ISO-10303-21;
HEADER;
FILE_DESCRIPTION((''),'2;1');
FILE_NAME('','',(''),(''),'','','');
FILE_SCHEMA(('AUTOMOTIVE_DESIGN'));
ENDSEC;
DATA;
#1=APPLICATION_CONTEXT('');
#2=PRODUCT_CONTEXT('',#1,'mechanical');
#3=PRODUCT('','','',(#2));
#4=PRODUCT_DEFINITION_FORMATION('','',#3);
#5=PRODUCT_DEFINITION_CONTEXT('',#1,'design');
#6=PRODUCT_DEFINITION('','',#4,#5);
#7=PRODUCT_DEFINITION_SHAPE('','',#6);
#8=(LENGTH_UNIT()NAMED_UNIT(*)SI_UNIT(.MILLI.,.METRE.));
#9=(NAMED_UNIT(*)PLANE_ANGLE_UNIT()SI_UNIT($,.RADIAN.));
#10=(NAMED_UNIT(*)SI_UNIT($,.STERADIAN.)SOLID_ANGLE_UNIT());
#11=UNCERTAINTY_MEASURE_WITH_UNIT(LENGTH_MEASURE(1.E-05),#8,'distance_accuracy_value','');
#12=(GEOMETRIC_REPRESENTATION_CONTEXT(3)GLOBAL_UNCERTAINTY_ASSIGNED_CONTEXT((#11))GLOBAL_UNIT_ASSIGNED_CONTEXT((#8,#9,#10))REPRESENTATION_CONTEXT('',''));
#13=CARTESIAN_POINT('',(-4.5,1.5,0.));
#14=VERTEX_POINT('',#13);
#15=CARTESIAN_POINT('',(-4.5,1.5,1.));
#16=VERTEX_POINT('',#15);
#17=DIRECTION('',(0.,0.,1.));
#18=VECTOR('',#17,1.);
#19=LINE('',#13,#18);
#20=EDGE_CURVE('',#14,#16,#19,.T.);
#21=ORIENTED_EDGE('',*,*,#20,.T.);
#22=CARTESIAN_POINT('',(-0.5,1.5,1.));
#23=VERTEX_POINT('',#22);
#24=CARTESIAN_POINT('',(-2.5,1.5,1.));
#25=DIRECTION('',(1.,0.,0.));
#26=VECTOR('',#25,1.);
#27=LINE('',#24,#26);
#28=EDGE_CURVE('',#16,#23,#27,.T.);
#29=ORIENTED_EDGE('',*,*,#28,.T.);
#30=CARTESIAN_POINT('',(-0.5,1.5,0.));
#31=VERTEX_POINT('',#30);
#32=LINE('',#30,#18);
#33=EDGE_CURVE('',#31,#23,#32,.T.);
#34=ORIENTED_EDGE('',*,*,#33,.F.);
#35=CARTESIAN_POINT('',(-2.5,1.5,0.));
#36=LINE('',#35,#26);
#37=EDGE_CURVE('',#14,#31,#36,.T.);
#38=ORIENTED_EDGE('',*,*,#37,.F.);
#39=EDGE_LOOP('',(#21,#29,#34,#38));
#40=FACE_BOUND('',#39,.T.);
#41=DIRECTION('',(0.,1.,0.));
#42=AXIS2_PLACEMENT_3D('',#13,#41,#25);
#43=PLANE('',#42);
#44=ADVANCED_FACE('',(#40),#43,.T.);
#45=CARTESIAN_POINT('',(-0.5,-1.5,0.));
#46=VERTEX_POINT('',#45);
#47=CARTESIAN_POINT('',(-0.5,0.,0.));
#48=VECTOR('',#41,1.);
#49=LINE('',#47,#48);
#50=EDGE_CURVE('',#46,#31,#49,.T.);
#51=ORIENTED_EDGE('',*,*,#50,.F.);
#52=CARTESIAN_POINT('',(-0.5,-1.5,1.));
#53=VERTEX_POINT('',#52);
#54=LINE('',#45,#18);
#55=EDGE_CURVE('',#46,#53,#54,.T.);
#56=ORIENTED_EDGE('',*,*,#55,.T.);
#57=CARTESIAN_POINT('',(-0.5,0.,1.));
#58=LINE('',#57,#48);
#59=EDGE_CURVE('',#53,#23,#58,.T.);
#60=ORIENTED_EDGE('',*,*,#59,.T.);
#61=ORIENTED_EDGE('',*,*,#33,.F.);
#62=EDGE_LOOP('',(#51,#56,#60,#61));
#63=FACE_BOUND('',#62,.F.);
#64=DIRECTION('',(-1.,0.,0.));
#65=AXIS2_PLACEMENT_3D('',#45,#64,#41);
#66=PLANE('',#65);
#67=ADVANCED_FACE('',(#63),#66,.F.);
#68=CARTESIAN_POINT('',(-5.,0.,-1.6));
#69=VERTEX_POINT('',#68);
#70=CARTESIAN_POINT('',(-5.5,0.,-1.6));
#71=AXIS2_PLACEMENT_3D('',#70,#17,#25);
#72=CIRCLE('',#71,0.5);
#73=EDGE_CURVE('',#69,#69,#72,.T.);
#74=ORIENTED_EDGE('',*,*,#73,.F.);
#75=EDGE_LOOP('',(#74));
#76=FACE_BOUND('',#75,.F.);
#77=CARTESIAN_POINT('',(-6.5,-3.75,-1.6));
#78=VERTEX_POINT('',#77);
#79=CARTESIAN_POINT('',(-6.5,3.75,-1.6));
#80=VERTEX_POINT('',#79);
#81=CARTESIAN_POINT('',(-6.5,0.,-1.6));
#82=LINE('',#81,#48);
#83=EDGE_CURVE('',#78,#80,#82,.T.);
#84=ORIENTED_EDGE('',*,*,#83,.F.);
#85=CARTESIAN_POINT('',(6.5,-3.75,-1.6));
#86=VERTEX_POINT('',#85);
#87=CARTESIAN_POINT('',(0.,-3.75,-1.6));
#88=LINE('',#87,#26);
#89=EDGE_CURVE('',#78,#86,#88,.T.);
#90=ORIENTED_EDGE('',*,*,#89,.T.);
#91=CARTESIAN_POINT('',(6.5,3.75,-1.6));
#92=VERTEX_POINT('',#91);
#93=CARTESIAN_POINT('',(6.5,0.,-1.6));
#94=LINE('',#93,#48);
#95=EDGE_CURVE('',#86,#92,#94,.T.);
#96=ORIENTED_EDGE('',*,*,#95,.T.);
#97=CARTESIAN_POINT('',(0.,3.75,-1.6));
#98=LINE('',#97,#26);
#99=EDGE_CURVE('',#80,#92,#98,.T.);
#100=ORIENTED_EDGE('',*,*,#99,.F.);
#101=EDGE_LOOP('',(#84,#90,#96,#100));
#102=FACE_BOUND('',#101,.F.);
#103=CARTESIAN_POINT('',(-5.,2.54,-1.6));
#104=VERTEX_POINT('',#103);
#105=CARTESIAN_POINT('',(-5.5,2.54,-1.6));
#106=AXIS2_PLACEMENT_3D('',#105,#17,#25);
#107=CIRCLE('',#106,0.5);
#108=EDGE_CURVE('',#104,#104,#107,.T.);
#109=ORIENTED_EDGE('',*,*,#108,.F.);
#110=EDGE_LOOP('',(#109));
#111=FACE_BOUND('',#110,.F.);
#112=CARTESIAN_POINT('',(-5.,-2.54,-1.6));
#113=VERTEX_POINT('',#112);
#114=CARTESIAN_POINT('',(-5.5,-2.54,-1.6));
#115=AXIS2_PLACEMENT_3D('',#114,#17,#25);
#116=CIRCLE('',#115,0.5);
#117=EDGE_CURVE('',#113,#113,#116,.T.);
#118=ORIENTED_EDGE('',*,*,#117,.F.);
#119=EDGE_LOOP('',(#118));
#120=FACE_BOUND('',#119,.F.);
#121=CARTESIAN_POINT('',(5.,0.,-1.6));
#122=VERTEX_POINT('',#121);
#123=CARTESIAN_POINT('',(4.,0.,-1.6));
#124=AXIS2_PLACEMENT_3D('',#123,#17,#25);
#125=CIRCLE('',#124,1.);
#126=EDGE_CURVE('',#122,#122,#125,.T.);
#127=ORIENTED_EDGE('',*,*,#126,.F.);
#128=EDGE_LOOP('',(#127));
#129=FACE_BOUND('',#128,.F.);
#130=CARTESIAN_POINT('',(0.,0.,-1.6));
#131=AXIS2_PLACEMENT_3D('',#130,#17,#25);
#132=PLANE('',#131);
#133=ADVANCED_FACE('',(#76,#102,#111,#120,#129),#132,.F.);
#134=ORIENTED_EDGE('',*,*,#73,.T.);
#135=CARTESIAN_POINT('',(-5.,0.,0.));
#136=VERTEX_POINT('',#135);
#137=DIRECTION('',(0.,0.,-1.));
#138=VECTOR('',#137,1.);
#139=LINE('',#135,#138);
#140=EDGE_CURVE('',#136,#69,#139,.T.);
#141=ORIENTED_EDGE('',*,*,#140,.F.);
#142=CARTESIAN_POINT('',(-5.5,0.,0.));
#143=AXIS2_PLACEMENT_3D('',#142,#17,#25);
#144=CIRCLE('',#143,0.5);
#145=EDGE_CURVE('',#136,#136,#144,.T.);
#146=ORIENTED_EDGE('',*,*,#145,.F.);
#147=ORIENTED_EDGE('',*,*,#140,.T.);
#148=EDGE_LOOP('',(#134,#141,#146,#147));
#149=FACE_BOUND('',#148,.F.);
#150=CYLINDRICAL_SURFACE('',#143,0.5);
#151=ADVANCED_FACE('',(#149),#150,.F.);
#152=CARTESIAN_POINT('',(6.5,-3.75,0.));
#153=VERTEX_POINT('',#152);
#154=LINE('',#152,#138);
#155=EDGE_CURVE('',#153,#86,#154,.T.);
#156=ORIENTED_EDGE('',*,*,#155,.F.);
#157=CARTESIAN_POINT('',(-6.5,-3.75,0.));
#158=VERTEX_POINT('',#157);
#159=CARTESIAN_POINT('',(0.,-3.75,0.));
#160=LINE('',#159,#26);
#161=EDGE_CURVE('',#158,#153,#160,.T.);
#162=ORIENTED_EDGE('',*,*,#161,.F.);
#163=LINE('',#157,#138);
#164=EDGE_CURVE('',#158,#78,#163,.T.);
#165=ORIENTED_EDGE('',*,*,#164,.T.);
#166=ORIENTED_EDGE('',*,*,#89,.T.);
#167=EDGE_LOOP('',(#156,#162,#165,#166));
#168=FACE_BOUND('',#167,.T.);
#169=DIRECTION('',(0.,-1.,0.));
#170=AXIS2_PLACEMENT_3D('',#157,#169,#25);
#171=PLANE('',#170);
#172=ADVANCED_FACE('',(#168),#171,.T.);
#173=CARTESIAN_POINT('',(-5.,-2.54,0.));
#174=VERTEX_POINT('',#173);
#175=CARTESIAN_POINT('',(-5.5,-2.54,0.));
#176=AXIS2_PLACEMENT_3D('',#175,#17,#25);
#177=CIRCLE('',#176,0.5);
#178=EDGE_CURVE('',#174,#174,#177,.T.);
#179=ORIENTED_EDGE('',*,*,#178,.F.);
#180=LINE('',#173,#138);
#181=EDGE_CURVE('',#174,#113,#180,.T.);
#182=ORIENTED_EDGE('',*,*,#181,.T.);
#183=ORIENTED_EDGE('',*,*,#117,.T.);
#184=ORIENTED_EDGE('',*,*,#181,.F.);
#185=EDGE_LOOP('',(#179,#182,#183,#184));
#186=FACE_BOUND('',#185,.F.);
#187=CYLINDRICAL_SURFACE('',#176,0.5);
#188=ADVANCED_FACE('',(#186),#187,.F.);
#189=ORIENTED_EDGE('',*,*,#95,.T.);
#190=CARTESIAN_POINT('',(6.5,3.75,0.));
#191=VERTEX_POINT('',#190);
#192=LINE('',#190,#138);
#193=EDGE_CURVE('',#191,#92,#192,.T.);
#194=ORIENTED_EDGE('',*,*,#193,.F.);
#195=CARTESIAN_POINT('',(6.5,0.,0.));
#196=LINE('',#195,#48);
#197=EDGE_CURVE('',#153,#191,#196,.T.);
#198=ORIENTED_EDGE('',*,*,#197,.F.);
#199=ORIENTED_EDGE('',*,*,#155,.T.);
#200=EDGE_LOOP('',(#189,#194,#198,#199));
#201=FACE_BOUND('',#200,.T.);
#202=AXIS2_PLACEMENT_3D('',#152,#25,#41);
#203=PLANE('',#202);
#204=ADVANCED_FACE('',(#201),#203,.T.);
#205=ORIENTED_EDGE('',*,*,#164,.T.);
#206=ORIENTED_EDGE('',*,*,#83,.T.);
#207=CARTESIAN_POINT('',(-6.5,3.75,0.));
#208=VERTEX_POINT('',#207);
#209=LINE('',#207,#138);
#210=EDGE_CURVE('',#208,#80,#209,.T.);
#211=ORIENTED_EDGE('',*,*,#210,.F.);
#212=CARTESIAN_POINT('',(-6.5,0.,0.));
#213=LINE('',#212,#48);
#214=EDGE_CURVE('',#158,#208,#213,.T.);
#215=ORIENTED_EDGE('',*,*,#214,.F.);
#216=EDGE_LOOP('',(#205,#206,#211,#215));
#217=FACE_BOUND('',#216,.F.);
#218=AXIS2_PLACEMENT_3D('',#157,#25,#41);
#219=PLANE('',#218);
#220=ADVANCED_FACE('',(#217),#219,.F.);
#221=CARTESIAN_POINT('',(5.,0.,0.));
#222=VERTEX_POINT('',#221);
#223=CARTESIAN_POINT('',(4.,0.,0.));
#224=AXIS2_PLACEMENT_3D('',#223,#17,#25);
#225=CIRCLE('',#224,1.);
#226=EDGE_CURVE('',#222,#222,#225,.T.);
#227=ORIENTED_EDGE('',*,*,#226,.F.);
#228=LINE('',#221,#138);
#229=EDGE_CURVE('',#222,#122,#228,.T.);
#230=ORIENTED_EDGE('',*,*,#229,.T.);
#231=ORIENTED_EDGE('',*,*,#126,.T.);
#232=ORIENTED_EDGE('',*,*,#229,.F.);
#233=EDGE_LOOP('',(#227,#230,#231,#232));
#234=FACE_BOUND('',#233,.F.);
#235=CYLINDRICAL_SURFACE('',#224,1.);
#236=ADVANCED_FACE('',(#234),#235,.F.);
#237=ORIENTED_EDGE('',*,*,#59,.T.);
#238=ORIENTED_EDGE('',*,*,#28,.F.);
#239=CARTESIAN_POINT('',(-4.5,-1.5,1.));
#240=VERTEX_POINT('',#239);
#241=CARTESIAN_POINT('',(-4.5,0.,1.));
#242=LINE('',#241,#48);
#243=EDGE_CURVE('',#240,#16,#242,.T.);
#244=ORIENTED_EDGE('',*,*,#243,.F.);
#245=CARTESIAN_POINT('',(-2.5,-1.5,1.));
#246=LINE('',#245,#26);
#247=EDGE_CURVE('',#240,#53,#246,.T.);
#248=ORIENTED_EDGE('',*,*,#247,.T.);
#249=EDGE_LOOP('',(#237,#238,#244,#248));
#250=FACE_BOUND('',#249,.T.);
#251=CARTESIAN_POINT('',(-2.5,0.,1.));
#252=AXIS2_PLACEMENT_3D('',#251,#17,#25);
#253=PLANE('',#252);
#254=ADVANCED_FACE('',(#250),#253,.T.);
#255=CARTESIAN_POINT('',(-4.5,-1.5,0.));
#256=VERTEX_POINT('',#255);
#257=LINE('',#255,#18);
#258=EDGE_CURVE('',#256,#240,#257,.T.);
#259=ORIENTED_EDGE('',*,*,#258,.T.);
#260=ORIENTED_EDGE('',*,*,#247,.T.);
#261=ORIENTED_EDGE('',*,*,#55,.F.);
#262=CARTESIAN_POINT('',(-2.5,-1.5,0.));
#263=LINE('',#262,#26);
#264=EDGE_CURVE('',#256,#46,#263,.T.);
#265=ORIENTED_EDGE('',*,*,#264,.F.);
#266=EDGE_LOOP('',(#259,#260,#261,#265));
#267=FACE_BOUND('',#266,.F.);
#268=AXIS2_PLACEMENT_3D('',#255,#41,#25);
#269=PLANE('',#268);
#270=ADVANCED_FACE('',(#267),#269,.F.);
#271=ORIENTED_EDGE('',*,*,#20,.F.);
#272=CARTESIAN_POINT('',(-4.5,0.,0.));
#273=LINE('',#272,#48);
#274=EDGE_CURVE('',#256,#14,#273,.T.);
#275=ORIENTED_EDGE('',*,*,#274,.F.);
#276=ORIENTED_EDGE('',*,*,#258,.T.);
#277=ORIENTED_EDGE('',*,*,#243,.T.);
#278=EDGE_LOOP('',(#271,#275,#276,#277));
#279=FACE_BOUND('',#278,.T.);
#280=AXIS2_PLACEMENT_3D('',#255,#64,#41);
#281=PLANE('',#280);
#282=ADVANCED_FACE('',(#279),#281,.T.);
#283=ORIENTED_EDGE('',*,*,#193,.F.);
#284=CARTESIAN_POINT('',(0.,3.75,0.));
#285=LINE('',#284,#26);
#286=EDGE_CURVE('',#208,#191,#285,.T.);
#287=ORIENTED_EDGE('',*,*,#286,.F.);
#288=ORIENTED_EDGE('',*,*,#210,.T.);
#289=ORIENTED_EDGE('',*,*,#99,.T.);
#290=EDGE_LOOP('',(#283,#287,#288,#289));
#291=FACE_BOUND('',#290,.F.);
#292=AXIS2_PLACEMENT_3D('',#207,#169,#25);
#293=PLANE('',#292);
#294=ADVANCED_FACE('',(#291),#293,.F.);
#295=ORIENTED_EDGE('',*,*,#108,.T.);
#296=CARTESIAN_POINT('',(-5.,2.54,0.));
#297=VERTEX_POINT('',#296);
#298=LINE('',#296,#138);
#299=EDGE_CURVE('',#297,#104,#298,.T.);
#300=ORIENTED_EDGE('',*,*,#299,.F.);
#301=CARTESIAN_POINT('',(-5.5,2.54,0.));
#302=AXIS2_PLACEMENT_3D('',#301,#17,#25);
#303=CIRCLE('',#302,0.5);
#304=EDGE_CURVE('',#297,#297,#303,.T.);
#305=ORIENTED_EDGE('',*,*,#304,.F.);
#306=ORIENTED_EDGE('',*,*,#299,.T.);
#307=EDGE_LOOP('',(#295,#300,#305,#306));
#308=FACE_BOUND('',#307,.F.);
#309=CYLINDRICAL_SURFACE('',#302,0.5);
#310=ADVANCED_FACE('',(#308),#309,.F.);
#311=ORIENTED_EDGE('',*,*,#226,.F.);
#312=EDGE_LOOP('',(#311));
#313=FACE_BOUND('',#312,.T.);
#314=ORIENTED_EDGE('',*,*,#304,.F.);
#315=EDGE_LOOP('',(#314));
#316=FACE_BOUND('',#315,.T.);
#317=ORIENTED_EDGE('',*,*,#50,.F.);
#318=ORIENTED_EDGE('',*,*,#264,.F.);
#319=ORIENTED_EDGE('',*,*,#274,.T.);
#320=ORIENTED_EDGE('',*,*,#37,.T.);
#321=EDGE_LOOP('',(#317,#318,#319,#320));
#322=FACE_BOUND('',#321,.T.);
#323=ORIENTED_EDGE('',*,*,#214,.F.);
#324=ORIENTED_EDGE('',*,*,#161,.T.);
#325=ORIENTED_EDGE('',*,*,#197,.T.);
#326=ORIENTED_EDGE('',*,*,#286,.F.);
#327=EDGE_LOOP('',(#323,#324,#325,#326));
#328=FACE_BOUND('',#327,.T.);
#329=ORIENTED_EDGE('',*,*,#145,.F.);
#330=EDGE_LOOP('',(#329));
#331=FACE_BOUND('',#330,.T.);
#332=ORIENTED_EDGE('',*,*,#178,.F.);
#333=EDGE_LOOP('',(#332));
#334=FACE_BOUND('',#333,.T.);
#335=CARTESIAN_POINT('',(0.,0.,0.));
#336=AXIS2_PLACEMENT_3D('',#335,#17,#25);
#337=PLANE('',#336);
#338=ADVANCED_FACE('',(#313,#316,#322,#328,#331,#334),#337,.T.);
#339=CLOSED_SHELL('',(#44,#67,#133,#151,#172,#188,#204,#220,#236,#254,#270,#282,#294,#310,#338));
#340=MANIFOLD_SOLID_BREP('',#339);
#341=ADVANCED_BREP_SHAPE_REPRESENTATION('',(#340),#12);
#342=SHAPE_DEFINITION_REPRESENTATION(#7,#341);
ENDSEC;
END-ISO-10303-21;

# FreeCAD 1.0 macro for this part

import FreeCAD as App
import Part
import Sketcher

V = App.Vector
Q = App.Units.Quantity

doc = App.newDocument("Part")
body = doc.addObject("PartDesign::Body", "Body")

# Sketch on XY plane
sketch1 = body.newObject("Sketcher::SketchObject", "Sketch")
sketch1.AttachmentSupport = (doc.getObject("XY_Plane"), [""])
sketch1.MapMode = "FlatFace"
sketch1.addGeometry([
    Part.LineSegment(V(-6.5, 3.8, 0), V(-6.5, -3.8, 0)),  # 0
    Part.LineSegment(V(-6.5, -3.8, 0), V(6.5, -3.8, 0)),  # 1
    Part.LineSegment(V(6.5, -3.8, 0), V(6.5, 3.8, 0)),  # 2
    Part.LineSegment(V(6.5, 3.8, 0), V(-6.5, 3.8, 0)),  # 3
    Part.Circle(V(-5.5, -2.5, 0), V(0, 0, 1), 0.5),  # 4
    Part.Circle(V(-5.5, 0, 0), V(0, 0, 1), 0.5),  # 5
    Part.Circle(V(-5.5, 2.5, 0), V(0, 0, 1), 0.5),  # 6
    Part.Circle(V(4, 0, 0), V(0, 0, 1), 1),  # 7
], False)
sketch1.addConstraint([
    Sketcher.Constraint("Coincident", 0, 2, 1, 1),
    Sketcher.Constraint("Coincident", 1, 2, 2, 1),
    Sketcher.Constraint("Coincident", 2, 2, 3, 1),
    Sketcher.Constraint("Coincident", 3, 2, 0, 1),
    Sketcher.Constraint("Vertical", 0),
    Sketcher.Constraint("Horizontal", 1),
    Sketcher.Constraint("Vertical", 2),
    Sketcher.Constraint("Horizontal", 3),
    Sketcher.Constraint("Equal", 4, 5),
    Sketcher.Constraint("Equal", 5, 6),
    Sketcher.Constraint("Symmetric", 0, 2, 2, 2, -1, 1),
    Sketcher.Constraint("Symmetric", 4, 3, 6, 3, -1),
    Sketcher.Constraint("PointOnObject", 5, 3, -1),
    Sketcher.Constraint("PointOnObject", 7, 3, -1),
    Sketcher.Constraint("Vertical", 4, 3, 5, 3),
    Sketcher.Constraint("Diameter", 4, Q("1 mm")),
    Sketcher.Constraint("Diameter", 7, Q("2 mm")),
    Sketcher.Constraint("DistanceX", 1, 1, 1, 2, Q("13 mm")),
    Sketcher.Constraint("DistanceY", 0, 2, 0, 1, Q("7.5 mm")),
    Sketcher.Constraint("DistanceX", -1, 1, 7, 3, Q("4 mm")),
    Sketcher.Constraint("DistanceX", 0, 2, 4, 3, Q("1 mm")),
    Sketcher.Constraint("DistanceY", 4, 3, -1, 1, Q("2.54 mm")),
])
pad1 = body.newObject("PartDesign::Pad", "Pad")
pad1.Profile = sketch1
pad1.Length = 1.6
pad1.Reversed = True

# Sketch on XY plane
sketch2 = body.newObject("Sketcher::SketchObject", "Sketch001")
sketch2.AttachmentSupport = (doc.getObject("XY_Plane"), [""])
sketch2.MapMode = "FlatFace"
sketch2.addGeometry([
    Part.LineSegment(V(-4.5, 1.5, 0), V(-4.5, -1.5, 0)),
    Part.LineSegment(V(-4.5, -1.5, 0), V(-0.5, -1.5, 0)),
    Part.LineSegment(V(-0.5, -1.5, 0), V(-0.5, 1.5, 0)),
    Part.LineSegment(V(-0.5, 1.5, 0), V(-4.5, 1.5, 0)),
], False)
sketch2.addConstraint([
    Sketcher.Constraint("Coincident", 0, 2, 1, 1),
    Sketcher.Constraint("Coincident", 1, 2, 2, 1),
    Sketcher.Constraint("Coincident", 2, 2, 3, 1),
    Sketcher.Constraint("Coincident", 3, 2, 0, 1),
    Sketcher.Constraint("Vertical", 0),
    Sketcher.Constraint("Horizontal", 1),
    Sketcher.Constraint("Vertical", 2),
    Sketcher.Constraint("Horizontal", 3),
    Sketcher.Constraint("DistanceX", 1, 1, 1, 2, Q("4 mm")),
    Sketcher.Constraint("DistanceY", 0, 2, 0, 1, Q("3 mm")),
    Sketcher.Constraint("DistanceX", 0, 2, -1, 1, Q("4.5 mm")),
    Sketcher.Constraint("DistanceY", 0, 2, -1, 1, Q("1.5 mm")),
])
pad2 = body.newObject("PartDesign::Pad", "Pad001")
pad2.Profile = sketch2
pad2.Length = 1

doc.recompute()
